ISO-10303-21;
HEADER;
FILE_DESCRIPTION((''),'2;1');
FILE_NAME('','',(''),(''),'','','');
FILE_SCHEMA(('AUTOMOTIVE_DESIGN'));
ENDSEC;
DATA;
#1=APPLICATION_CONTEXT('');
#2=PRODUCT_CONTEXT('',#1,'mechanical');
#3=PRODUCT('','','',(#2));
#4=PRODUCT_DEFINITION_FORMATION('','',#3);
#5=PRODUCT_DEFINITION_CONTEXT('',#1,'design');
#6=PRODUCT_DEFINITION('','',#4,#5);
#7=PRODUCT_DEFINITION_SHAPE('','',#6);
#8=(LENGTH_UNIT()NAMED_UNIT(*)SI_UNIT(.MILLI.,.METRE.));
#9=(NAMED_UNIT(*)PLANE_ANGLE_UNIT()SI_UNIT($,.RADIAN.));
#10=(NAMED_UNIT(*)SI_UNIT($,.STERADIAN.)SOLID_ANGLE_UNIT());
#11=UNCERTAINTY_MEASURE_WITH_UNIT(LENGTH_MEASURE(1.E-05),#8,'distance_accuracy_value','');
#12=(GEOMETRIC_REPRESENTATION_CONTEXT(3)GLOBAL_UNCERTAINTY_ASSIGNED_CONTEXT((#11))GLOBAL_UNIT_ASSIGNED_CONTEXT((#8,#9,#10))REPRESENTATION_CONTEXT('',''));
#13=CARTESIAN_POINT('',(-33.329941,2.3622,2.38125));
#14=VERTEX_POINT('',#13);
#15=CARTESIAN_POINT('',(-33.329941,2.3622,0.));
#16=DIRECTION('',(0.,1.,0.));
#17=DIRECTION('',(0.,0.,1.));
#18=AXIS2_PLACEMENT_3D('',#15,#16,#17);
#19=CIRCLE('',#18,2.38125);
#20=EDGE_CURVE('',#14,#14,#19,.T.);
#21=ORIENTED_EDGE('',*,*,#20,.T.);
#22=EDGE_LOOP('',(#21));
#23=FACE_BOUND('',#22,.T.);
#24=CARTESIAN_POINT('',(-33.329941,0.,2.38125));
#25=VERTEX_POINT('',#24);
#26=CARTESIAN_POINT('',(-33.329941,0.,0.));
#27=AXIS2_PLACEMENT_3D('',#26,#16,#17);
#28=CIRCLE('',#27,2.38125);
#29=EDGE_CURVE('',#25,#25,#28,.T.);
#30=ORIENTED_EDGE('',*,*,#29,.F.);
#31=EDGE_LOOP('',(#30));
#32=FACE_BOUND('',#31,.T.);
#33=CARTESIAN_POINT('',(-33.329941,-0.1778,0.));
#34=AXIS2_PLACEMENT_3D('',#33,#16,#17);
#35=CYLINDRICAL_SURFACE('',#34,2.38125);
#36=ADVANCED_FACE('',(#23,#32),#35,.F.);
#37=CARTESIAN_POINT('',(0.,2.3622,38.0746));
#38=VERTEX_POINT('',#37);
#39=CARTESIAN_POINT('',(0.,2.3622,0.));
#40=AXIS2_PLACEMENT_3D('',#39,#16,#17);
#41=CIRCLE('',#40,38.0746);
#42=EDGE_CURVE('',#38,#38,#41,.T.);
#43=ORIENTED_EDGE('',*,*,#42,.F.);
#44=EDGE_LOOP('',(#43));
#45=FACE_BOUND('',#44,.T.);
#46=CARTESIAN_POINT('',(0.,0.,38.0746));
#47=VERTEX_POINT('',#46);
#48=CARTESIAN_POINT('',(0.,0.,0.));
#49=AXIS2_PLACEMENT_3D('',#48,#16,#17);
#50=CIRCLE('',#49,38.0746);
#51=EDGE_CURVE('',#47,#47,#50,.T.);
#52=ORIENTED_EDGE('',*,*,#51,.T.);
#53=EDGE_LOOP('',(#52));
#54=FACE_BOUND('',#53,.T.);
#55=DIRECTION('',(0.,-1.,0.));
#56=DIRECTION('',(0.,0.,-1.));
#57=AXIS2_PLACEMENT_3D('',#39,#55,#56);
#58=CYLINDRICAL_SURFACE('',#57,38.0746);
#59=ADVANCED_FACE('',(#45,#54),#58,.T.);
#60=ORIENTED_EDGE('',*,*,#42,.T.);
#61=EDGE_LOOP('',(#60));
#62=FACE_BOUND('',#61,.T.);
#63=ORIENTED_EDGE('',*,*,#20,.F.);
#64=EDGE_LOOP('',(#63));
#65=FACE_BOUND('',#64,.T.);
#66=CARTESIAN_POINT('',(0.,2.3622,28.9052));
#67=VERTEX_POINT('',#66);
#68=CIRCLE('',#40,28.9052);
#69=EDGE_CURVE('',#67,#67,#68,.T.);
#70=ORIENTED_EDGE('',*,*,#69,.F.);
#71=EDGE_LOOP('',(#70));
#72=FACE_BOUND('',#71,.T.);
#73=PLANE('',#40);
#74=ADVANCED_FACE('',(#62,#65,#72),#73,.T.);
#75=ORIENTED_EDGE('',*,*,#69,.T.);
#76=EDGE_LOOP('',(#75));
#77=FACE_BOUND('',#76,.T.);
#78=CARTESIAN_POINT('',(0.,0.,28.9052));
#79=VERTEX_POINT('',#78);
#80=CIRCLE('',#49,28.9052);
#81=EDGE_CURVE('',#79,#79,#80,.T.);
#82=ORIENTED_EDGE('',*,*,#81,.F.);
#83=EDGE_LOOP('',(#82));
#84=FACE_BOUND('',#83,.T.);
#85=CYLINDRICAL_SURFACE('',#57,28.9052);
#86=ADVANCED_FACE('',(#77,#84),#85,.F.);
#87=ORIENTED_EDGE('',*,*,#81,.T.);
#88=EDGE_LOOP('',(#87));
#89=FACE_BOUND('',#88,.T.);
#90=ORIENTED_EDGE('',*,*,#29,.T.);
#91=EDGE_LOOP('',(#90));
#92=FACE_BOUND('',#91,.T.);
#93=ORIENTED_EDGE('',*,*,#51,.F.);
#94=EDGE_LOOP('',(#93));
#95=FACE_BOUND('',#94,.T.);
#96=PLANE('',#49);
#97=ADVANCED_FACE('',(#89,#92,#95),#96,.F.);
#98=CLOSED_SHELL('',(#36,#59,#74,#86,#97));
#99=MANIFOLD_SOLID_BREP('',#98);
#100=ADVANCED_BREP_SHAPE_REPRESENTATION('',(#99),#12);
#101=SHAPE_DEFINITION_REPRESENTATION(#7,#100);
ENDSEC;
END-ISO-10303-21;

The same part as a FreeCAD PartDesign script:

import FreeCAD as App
import Part
import Sketcher
Q = App.Units.Quantity

doc = App.newDocument("Part")
body = doc.addObject("PartDesign::Body", "Body")

# Sketch on XZ plane
sketch1 = doc.addObject("Sketcher::SketchObject", "Sketch")
body.addObject(sketch1)
sketch1.AttachmentSupport = (doc.XZ_Plane, [""])
sketch1.MapMode = "FlatFace"
sketch1.addGeometry([
    Part.Circle(App.Vector(0, 0, 0), App.Vector(0, 0, 1), 38.0746),
    Part.Circle(App.Vector(0, 0, 0), App.Vector(0, 0, 1), 28.9052),
], False)
sketch1.addConstraint([
    Sketcher.Constraint("Coincident", 0, 3, -1, 1),
    Sketcher.Constraint("Coincident", 1, 3, -1, 1),
    Sketcher.Constraint("Diameter", 0, Q("2.998 in")),
    Sketcher.Constraint("Diameter", 1, Q("2.276 in")),
])
pad1 = doc.addObject("PartDesign::Pad", "Pad")
body.addObject(pad1)
pad1.Profile = sketch1
pad1.Length = Q("0.093 in")
pad1.Reversed = True

# Sketch on XZ plane
sketch2 = doc.addObject("Sketcher::SketchObject", "Sketch001")
body.addObject(sketch2)
sketch2.AttachmentSupport = (doc.XZ_Plane, [""])
sketch2.MapMode = "FlatFace"
sketch2.AttachmentOffset = App.Placement(App.Vector(0, 0, -0.093 * 25.4), App.Rotation())
sketch2.addGeometry(Part.Circle(App.Vector(-33.329941, 0, 0), App.Vector(0, 0, 1), 2.38125), False)
sketch2.addConstraint([
    Sketcher.Constraint("PointOnObject", 0, 3, -1),
    Sketcher.Constraint("Diameter", 0, Q("0.1875 in")),
    Sketcher.Constraint("DistanceX", 0, 3, -1, 1, Q("33.329941 mm")),
])
pocket1 = doc.addObject("PartDesign::Pocket", "Pocket")
body.addObject(pocket1)
pocket1.Profile = sketch2
pocket1.Length = Q("0.1 in")
pocket1.Reversed = True

doc.recompute()
